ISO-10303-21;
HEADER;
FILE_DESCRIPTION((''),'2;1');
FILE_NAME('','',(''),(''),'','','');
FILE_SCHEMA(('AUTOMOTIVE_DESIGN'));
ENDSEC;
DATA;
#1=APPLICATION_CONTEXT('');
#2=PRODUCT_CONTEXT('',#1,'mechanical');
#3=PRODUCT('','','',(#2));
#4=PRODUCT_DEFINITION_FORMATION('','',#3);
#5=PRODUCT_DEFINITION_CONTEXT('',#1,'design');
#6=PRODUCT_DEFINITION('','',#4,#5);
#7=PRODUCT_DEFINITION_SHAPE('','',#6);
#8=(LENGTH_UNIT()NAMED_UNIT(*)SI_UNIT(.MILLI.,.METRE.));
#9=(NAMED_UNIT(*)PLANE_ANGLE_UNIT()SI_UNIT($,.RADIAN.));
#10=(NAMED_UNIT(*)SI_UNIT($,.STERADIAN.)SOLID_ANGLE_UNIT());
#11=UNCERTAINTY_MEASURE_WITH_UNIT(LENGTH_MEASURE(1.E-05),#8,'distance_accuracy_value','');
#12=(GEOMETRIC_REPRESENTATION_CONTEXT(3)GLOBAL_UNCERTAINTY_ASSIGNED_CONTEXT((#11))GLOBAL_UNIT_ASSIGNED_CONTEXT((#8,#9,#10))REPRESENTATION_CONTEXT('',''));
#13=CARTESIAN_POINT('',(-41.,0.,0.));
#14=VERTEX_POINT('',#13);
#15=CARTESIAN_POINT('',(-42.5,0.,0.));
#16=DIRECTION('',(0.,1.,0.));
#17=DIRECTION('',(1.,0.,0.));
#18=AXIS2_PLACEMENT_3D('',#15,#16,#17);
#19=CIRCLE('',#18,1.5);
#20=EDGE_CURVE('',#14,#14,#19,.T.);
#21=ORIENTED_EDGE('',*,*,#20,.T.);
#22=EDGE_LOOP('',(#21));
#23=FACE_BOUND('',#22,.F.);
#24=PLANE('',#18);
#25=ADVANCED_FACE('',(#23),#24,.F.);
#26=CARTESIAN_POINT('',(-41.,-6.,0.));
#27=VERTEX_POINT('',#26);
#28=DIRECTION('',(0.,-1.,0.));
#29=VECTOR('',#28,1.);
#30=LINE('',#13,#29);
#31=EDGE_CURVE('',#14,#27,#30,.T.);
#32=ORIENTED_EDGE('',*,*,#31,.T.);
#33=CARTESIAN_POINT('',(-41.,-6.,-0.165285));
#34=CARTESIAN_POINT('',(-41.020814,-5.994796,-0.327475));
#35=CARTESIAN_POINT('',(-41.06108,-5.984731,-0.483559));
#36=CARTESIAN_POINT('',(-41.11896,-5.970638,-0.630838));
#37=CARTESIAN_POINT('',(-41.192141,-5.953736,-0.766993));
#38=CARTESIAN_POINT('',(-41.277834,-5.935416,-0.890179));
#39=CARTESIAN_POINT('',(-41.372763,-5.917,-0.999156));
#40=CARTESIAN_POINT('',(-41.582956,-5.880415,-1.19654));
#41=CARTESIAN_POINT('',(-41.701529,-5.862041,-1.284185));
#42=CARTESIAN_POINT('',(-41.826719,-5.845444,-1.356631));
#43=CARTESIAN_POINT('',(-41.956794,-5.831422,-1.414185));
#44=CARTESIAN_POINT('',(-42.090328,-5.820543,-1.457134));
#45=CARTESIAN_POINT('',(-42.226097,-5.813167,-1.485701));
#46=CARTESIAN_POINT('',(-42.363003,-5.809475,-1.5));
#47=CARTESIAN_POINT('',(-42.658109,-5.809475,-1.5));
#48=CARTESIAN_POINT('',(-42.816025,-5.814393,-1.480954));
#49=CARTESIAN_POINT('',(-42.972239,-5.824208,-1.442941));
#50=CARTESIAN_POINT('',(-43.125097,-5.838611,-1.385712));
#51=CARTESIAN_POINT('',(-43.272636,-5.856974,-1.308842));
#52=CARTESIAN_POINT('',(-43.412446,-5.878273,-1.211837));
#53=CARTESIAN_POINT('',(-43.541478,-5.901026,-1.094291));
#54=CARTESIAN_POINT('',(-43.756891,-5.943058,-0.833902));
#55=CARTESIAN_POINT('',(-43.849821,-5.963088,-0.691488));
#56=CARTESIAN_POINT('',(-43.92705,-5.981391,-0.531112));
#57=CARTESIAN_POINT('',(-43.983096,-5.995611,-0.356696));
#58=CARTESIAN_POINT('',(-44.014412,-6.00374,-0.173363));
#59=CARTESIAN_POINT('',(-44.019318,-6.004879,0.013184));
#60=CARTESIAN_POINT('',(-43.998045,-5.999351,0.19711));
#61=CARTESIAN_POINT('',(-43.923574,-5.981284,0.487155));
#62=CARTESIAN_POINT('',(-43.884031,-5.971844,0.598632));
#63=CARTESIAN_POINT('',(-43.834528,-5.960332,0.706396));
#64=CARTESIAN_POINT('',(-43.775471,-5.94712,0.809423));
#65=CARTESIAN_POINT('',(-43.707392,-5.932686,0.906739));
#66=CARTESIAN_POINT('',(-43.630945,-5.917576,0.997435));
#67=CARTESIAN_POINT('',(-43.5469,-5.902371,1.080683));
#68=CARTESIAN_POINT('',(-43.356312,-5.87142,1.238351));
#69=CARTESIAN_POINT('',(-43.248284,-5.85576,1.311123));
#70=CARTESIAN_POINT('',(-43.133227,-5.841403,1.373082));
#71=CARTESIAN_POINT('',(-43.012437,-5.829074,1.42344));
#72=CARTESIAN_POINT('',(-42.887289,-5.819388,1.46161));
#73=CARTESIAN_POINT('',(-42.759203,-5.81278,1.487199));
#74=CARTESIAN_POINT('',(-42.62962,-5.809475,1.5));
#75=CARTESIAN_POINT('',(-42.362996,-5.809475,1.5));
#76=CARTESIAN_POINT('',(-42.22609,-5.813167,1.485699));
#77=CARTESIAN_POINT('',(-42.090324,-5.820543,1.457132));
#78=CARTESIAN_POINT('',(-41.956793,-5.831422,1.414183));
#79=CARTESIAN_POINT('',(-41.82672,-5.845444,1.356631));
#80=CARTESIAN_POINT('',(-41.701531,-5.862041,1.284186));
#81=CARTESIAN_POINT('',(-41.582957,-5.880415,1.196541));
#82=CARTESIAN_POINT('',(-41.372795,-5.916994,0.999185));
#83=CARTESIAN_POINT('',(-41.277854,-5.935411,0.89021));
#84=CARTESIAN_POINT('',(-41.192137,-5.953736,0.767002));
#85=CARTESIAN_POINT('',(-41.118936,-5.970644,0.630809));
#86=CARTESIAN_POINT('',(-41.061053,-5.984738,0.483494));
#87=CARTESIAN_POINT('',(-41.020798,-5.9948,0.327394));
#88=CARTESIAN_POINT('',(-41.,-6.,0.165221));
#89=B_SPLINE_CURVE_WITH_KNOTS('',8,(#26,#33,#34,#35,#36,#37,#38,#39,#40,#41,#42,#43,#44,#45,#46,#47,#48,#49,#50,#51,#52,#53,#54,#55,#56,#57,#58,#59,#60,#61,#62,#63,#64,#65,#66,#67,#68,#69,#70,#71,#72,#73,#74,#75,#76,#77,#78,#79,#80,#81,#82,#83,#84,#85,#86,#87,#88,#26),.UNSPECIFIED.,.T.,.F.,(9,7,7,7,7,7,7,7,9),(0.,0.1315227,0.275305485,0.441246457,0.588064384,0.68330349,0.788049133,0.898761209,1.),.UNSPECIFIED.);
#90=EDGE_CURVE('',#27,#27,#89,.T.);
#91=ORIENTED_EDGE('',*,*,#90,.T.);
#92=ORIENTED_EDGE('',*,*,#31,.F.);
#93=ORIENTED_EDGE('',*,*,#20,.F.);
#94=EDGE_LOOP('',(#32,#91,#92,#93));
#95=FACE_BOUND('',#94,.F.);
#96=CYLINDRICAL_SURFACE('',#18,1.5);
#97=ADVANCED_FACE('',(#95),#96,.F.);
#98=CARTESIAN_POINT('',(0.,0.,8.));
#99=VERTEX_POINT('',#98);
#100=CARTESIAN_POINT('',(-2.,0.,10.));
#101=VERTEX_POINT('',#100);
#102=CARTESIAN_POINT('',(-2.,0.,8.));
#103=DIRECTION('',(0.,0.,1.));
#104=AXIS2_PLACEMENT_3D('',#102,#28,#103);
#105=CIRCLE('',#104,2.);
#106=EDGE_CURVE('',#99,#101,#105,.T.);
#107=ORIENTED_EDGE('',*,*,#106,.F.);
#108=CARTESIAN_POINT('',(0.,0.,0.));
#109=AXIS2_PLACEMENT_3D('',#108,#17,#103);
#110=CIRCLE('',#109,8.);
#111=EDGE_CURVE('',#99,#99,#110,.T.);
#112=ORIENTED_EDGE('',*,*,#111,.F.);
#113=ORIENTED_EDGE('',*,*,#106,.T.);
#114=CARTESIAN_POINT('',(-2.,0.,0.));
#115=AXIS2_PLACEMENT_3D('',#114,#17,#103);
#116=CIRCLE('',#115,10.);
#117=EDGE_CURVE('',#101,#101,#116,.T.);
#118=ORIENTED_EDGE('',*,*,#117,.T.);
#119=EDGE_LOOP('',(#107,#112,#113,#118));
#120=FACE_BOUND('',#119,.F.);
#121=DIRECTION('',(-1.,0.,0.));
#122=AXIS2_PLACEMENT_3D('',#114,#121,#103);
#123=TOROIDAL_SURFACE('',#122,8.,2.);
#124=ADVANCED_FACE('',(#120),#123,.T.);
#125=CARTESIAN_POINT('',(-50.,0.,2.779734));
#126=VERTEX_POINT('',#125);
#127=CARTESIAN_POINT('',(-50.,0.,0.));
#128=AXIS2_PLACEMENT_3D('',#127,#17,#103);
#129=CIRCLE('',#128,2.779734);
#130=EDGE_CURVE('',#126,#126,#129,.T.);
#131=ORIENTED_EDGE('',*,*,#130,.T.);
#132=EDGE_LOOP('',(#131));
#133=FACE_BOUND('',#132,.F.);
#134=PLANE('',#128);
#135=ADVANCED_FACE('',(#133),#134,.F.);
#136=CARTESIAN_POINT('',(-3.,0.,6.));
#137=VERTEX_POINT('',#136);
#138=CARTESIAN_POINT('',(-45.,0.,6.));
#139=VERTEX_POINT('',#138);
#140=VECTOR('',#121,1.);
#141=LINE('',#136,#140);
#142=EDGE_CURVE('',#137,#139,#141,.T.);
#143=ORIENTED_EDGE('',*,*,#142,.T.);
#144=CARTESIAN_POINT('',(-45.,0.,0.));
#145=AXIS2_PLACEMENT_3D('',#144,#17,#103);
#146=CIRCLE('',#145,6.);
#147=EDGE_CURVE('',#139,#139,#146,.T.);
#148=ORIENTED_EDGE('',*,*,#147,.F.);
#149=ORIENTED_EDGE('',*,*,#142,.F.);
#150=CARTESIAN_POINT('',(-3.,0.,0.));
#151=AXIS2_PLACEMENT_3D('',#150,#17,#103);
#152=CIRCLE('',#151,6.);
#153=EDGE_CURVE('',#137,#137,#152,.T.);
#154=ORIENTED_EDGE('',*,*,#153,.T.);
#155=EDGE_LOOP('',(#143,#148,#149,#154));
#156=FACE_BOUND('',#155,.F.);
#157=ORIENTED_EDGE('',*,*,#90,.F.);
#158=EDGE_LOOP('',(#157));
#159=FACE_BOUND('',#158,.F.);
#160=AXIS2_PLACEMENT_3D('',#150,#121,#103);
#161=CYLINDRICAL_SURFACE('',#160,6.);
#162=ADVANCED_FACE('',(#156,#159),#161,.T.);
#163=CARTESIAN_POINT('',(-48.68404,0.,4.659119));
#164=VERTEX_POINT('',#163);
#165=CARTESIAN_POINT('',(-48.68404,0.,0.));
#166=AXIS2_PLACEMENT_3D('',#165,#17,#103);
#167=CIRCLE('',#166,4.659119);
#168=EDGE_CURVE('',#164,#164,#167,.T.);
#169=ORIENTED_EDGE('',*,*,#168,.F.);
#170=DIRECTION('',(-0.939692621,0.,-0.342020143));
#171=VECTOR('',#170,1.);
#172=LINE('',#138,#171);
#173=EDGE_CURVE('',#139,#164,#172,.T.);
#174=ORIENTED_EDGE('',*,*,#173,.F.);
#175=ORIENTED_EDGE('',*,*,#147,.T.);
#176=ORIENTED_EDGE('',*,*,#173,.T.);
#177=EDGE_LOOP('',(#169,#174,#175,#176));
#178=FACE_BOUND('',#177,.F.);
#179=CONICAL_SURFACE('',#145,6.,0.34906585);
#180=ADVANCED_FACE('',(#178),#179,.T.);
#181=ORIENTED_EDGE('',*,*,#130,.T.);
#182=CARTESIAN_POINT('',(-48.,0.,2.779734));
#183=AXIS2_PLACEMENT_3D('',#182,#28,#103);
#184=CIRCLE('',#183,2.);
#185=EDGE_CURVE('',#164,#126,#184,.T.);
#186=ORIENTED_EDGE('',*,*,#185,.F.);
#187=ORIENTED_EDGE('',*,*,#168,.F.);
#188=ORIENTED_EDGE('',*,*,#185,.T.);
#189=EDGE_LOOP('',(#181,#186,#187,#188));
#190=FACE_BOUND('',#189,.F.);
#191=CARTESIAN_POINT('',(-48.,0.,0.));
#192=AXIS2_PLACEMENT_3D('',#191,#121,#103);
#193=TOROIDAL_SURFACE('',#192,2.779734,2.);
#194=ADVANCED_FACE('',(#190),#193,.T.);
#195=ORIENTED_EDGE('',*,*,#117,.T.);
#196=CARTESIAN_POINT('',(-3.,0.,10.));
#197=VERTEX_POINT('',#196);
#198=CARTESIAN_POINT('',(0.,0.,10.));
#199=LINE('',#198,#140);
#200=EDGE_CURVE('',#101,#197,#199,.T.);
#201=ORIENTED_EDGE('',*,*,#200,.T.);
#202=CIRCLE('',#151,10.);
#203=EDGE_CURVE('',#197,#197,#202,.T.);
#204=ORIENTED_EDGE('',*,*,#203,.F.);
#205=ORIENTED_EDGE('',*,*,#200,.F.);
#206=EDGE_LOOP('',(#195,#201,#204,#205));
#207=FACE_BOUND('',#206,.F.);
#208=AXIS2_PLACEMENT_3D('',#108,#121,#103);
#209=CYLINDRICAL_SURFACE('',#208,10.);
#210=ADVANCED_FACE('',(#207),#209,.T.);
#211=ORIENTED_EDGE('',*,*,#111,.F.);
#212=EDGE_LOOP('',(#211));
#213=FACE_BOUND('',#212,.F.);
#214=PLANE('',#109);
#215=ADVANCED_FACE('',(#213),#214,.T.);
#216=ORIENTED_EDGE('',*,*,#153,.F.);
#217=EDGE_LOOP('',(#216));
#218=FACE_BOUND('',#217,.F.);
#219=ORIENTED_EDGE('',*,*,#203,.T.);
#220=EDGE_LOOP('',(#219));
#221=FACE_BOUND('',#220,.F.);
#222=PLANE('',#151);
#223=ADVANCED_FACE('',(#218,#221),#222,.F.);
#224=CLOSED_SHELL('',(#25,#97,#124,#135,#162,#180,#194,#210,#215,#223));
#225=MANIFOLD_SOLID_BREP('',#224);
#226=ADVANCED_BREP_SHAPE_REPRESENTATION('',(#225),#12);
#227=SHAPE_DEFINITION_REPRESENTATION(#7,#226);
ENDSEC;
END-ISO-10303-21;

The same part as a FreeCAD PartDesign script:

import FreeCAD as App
import Part
import Sketcher
from FreeCAD import Vector


def edges_at(feature, points):
    """Names of the edges that pass closest to the given points."""
    edges = feature.Shape.Edges
    near = lambda p: min(range(len(edges)), key=lambda i: edges[i].distToShape(Part.Vertex(*p))[0])
    return sorted({f"Edge{near(p) + 1}" for p in points})

doc = App.newDocument("Part")
params = doc.addObject("Spreadsheet::Sheet", "Params")
for row, (alias, value) in enumerate([
    ("sketch1_width", "50 mm"),
    ("sketch1_width2", "3 mm"),
    ("sketch1_height", "10 mm"),
    ("sketch1_height2", "4 mm"),
    ("revolution_angle", "360 deg"),
    ("fillet_radius", "2 mm"),
    ("chamfer_size", "5 mm"),
    ("chamfer_size2", "1.819851 mm"),
    ("fillet2_radius", "2 mm"),
    ("sketch2_diameter", "3 mm"),
], start=1):
    params.set(f"A{row}", alias)
    params.set(f"B{row}", "=" + value)
    params.setAlias(f"B{row}", alias)

body = doc.addObject("PartDesign::Body", "Body")

# Sketch on XZ plane
sketch1 = body.newObject("Sketcher::SketchObject", "Sketch")
sketch1.AttachmentSupport = (doc.getObject("XZ_Plane"), [""])
sketch1.MapMode = "FlatFace"
sketch1.addGeometry([
    Part.LineSegment(Vector(-50, 0, 0), Vector(0, 0, 0)),  # 0
    Part.LineSegment(Vector(0, 0, 0), Vector(0, 10, 0)),  # 1
    Part.LineSegment(Vector(0, 10, 0), Vector(-3, 10, 0)),  # 2
    Part.LineSegment(Vector(-3, 10, 0), Vector(-3, 6, 0)),  # 3
    Part.LineSegment(Vector(-3, 6, 0), Vector(-50, 6, 0)),  # 4
    Part.LineSegment(Vector(-50, 6, 0), Vector(-50, 0, 0)),  # 5
], False)
sketch1.addConstraint([
    Sketcher.Constraint("Coincident", 0, 2, 1, 1),
    Sketcher.Constraint("Coincident", 1, 2, 2, 1),
    Sketcher.Constraint("Coincident", 2, 2, 3, 1),
    Sketcher.Constraint("Coincident", 3, 2, 4, 1),
    Sketcher.Constraint("Coincident", 4, 2, 5, 1),
    Sketcher.Constraint("Coincident", 5, 2, 0, 1),
    Sketcher.Constraint("Horizontal", 0),
    Sketcher.Constraint("Vertical", 1),
    Sketcher.Constraint("Horizontal", 2),
    Sketcher.Constraint("Vertical", 3),
    Sketcher.Constraint("Horizontal", 4),
    Sketcher.Constraint("Vertical", 5),
    Sketcher.Constraint("Coincident", 0, 2, -1, 1),
    Sketcher.Constraint("DistanceX", 0, 1, 0, 2, 50.0),
    Sketcher.Constraint("DistanceX", 2, 2, 2, 1, 3.0),
    Sketcher.Constraint("DistanceY", 1, 1, 1, 2, 10.0),
    Sketcher.Constraint("DistanceY", 3, 2, 3, 1, 4.0),
])
sketch1.setExpression("Constraints[13]", "Params.sketch1_width")
sketch1.setExpression("Constraints[14]", "Params.sketch1_width2")
sketch1.setExpression("Constraints[15]", "Params.sketch1_height")
sketch1.setExpression("Constraints[16]", "Params.sketch1_height2")
revolution = body.newObject("PartDesign::Revolution", "Revolution")
revolution.Profile = sketch1
revolution.ReferenceAxis = (sketch1, ["H_Axis"])
revolution.setExpression("Angle", "Params.revolution_angle")
doc.recompute()

fillet = body.newObject("PartDesign::Fillet", "Fillet")
fillet.Base = (revolution, edges_at(revolution, [(0, 0, -10)]))
fillet.setExpression("Radius", "Params.fillet_radius")
doc.recompute()

chamfer = body.newObject("PartDesign::Chamfer", "Chamfer")
chamfer.Base = (fillet, edges_at(fillet, [(-50, 0, -6)]))
chamfer.ChamferType = "Two distances"
chamfer.setExpression("Size", "Params.chamfer_size")
chamfer.setExpression("Size2", "Params.chamfer_size2")
doc.recompute()

fillet2 = body.newObject("PartDesign::Fillet", "Fillet001")
fillet2.Base = (chamfer, edges_at(chamfer, [(-50, 0, -4.18)]))
fillet2.setExpression("Radius", "Params.fillet2_radius")

# Sketch on XZ plane
sketch2 = body.newObject("Sketcher::SketchObject", "Sketch001")
sketch2.AttachmentSupport = (doc.getObject("XZ_Plane"), [""])
sketch2.MapMode = "FlatFace"
sketch2.addGeometry(Part.Circle(Vector(-42.5, 0, 0), Vector(0, 0, 1), 1.5), False)
sketch2.addConstraint([
    Sketcher.Constraint("PointOnObject", 0, 3, -1),
    Sketcher.Constraint("Diameter", 0, 3.0),
    Sketcher.Constraint("DistanceX", 0, 3, -1, 1, 42.5),
])
sketch2.setExpression("Constraints[1]", "Params.sketch2_diameter")
pocket1 = body.newObject("PartDesign::Pocket", "Pocket")
pocket1.Profile = sketch2
pocket1.Type = "ThroughAll"
pocket1.Reversed = True

doc.recompute()
